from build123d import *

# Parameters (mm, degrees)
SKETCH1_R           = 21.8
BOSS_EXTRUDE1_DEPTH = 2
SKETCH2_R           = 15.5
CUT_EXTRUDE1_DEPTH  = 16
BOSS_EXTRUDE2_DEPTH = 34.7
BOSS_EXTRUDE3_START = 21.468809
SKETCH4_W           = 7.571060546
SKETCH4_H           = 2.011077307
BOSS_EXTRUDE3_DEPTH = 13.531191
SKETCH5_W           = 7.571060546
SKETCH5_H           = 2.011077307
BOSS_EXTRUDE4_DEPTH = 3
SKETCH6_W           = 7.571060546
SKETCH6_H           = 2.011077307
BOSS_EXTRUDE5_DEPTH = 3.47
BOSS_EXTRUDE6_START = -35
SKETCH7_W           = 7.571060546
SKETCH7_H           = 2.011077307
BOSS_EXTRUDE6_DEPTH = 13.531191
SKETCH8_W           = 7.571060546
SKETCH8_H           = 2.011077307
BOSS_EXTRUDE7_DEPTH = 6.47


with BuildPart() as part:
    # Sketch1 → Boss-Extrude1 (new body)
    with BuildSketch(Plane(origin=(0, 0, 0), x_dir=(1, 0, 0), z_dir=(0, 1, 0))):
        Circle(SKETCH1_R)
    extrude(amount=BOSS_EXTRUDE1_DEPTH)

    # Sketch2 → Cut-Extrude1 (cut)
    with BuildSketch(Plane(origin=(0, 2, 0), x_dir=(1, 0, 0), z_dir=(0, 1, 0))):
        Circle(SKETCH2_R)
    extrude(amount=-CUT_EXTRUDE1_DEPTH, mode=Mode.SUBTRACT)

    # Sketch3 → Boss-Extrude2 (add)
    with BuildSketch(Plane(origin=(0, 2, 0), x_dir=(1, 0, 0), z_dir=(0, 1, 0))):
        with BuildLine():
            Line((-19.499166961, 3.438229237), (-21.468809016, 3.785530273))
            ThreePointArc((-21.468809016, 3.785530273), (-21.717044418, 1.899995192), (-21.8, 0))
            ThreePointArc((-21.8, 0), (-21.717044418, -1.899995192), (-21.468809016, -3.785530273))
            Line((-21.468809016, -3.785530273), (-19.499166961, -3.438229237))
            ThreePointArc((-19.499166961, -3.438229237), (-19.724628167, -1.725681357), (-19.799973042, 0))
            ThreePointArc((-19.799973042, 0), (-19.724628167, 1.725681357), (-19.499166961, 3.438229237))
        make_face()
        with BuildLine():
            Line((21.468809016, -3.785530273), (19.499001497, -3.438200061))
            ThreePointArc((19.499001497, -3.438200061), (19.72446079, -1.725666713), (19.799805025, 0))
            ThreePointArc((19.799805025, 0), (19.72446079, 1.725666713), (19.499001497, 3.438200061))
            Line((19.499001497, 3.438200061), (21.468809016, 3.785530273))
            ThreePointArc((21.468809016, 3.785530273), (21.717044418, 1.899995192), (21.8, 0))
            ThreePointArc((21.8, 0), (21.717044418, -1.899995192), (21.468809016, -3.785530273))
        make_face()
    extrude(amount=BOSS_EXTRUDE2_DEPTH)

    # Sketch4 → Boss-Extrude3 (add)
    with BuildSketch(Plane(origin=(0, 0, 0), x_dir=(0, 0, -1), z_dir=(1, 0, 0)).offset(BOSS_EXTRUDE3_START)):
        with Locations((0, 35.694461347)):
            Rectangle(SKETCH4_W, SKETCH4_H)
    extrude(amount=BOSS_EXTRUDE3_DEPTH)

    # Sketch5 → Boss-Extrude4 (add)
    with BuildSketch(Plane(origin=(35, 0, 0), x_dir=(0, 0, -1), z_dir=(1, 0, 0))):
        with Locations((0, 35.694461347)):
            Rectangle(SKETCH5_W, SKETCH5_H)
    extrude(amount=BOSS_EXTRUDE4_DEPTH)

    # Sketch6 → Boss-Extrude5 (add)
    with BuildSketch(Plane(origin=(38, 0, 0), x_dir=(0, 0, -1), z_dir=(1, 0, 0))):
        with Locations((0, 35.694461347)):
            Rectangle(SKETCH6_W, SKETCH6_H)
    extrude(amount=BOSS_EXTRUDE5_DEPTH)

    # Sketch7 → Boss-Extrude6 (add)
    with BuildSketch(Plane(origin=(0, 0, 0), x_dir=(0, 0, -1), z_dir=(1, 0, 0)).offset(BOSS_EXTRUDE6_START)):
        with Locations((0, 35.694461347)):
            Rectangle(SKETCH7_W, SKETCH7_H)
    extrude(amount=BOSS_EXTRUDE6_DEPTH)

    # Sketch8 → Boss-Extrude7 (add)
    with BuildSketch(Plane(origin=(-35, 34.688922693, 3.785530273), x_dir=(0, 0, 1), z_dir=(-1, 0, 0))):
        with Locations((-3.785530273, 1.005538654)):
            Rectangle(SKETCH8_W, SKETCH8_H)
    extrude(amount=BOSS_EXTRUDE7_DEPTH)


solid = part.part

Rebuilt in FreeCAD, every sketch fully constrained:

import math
import FreeCAD as App
import Part
import Sketcher

V = App.Vector
Q = App.Units.Quantity


def add_polygon(sketch, points):
    """Adds a closed chain of lines whose ends are joined by coincident constraints."""
    first, n = sketch.GeometryCount, len(points)
    for a, b in zip(points, points[1:] + points[:1]):
        sketch.addGeometry(Part.LineSegment(App.Vector(*a, 0), App.Vector(*b, 0)), False)
    for i in range(n):
        sketch.addConstraint(Sketcher.Constraint("Coincident", first + i, 2, first + (i + 1) % n, 1))

doc = App.newDocument("Part")
body = doc.addObject("PartDesign::Body", "Body")

# Sketch on XZ plane
sketch1 = doc.addObject("Sketcher::SketchObject", "Sketch")
body.addObject(sketch1)
sketch1.AttachmentSupport = (doc.XZ_Plane, [""])
sketch1.MapMode = "FlatFace"
sketch1.addGeometry(Part.Circle(V(0, 0, 0), V(0, 0, 1), 22), False)
sketch1.addConstraint(Sketcher.Constraint("Coincident", 0, 3, -1, 1))
sketch1.addConstraint(Sketcher.Constraint("Diameter", 0, 43.6))
pad1 = doc.addObject("PartDesign::Pad", "Pad")
body.addObject(pad1)
pad1.Profile = sketch1
pad1.Length = 2
pad1.Reversed = True

# Sketch on XZ plane
sketch2 = doc.addObject("Sketcher::SketchObject", "Sketch001")
body.addObject(sketch2)
sketch2.AttachmentSupport = (doc.XZ_Plane, [""])
sketch2.MapMode = "FlatFace"
sketch2.AttachmentOffset = App.Placement(V(0, 0, -2), App.Rotation())
sketch2.addGeometry(Part.Circle(V(0, 0, 0), V(0, 0, 1), 16), False)
sketch2.addConstraint(Sketcher.Constraint("Coincident", 0, 3, -1, 1))
sketch2.addConstraint(Sketcher.Constraint("Diameter", 0, 31.0))
pocket1 = doc.addObject("PartDesign::Pocket", "Pocket")
body.addObject(pocket1)
pocket1.Profile = sketch2
pocket1.Length = 16
pocket1.Reversed = True

# Sketch on XZ plane
sketch3 = doc.addObject("Sketcher::SketchObject", "Sketch002")
body.addObject(sketch3)
sketch3.AttachmentSupport = (doc.XZ_Plane, [""])
sketch3.MapMode = "FlatFace"
sketch3.AttachmentOffset = App.Placement(V(0, 0, -2), App.Rotation())
sketch3.addGeometry(Part.LineSegment(V(-19.5, -3.4, 0), V(-21.5, -3.8, 0)), False)
sketch3.addGeometry(Part.ArcOfCircle(Part.Circle(V(0, 0, 0), V(0, 0, 1), 21.8), math.radians(-180), math.radians(-170)), False)
sketch3.addGeometry(Part.ArcOfCircle(Part.Circle(V(0, 0, 0), V(0, 0, 1), 21.8), math.radians(170), math.radians(180)), False)
sketch3.addGeometry(Part.LineSegment(V(-21.5, 3.8, 0), V(-19.5, 3.4, 0)), False)
sketch3.addGeometry(Part.ArcOfCircle(Part.Circle(V(0, 0, 0), V(0, 0, 1), 19.8), math.radians(170), math.radians(180)), False)
sketch3.addGeometry(Part.ArcOfCircle(Part.Circle(V(0, 0, 0), V(0, 0, 1), 19.8), math.radians(180), math.radians(190)), False)
sketch3.addGeometry(Part.LineSegment(V(19.5, 3.4, 0), V(21.5, 3.8, 0)), False)
sketch3.addGeometry(Part.ArcOfCircle(Part.Circle(V(0, 0, 0), V(0, 0, 1), 21.8), math.radians(0), math.radians(10)), False)
sketch3.addGeometry(Part.ArcOfCircle(Part.Circle(V(0, 0, 0), V(0, 0, 1), 21.8), math.radians(-10), math.radians(0)), False)
sketch3.addGeometry(Part.LineSegment(V(21.5, -3.8, 0), V(19.5, -3.4, 0)), False)
sketch3.addGeometry(Part.ArcOfCircle(Part.Circle(V(0, 0, 0), V(0, 0, 1), 19.8), math.radians(-10), math.radians(0)), False)
sketch3.addGeometry(Part.ArcOfCircle(Part.Circle(V(0, 0, 0), V(0, 0, 1), 19.8), math.radians(0), math.radians(10)), False)
sketch3.addConstraint(Sketcher.Constraint("Coincident", 0, 2, 1, 2))
sketch3.addConstraint(Sketcher.Constraint("Tangent", 1, 1, 2, 2))
sketch3.addConstraint(Sketcher.Constraint("Coincident", 2, 1, 3, 1))
sketch3.addConstraint(Sketcher.Constraint("Coincident", 3, 2, 4, 1))
sketch3.addConstraint(Sketcher.Constraint("Tangent", 4, 2, 5, 1))
sketch3.addConstraint(Sketcher.Constraint("Coincident", 5, 2, 0, 1))
sketch3.addConstraint(Sketcher.Constraint("Coincident", 6, 2, 7, 2))
sketch3.addConstraint(Sketcher.Constraint("Tangent", 7, 1, 8, 2))
sketch3.addConstraint(Sketcher.Constraint("Coincident", 8, 1, 9, 1))
sketch3.addConstraint(Sketcher.Constraint("Coincident", 9, 2, 10, 1))
sketch3.addConstraint(Sketcher.Constraint("Tangent", 10, 2, 11, 1))
sketch3.addConstraint(Sketcher.Constraint("Coincident", 11, 2, 6, 1))
sketch3.addConstraint(Sketcher.Constraint("Coincident", 1, 3, -1, 1))
sketch3.addConstraint(Sketcher.Constraint("Coincident", 4, 3, -1, 1))
sketch3.addConstraint(Sketcher.Constraint("Coincident", 7, 3, -1, 1))
sketch3.addConstraint(Sketcher.Constraint("Coincident", 10, 3, -1, 1))
sketch3.addConstraint(Sketcher.Constraint("Equal", 1, 2))
sketch3.addConstraint(Sketcher.Constraint("Equal", 4, 5))
sketch3.addConstraint(Sketcher.Constraint("Equal", 2, 7))
sketch3.addConstraint(Sketcher.Constraint("Equal", 7, 8))
sketch3.addConstraint(Sketcher.Constraint("Equal", 10, 11))
sketch3.addConstraint(Sketcher.Constraint("PointOnObject", 1, 1, -1))
sketch3.addConstraint(Sketcher.Constraint("PointOnObject", 4, 2, -1))
sketch3.addConstraint(Sketcher.Constraint("PointOnObject", 7, 1, -1))
sketch3.addConstraint(Sketcher.Constraint("PointOnObject", 10, 2, -1))
sketch3.addConstraint(Sketcher.Constraint("Parallel", 0, 6))
sketch3.addConstraint(Sketcher.Constraint("Parallel", 3, 9))
sketch3.addConstraint(Sketcher.Constraint("Horizontal", 2, 1, 6, 2))
sketch3.addConstraint(Sketcher.Constraint("Horizontal", 0, 2, 8, 1))
sketch3.addConstraint(Sketcher.Constraint("Vertical", 0, 2, 2, 1))
sketch3.addConstraint(Sketcher.Constraint("Vertical", 3, 2, 5, 2))
sketch3.addConstraint(Sketcher.Constraint("Radius", 1, 21.8))
sketch3.addConstraint(Sketcher.Constraint("Angle", 0, Q("-170 deg")))
sketch3.addConstraint(Sketcher.Constraint("DistanceX", -1, 1, 9, 2, 19.499001))
sketch3.addConstraint(Sketcher.Constraint("Radius", 4, 19.799973))
sketch3.addConstraint(Sketcher.Constraint("Radius", 10, 19.799805))
pad2 = doc.addObject("PartDesign::Pad", "Pad001")
body.addObject(pad2)
pad2.Profile = sketch3
pad2.Length = 34.7
pad2.Reversed = True

# Sketch on YZ plane
sketch4 = doc.addObject("Sketcher::SketchObject", "Sketch003")
body.addObject(sketch4)
sketch4.AttachmentSupport = (doc.YZ_Plane, [""])
sketch4.MapMode = "FlatFace"
sketch4.AttachmentOffset = App.Placement(V(0, 0, 21.468809), App.Rotation())
add_polygon(sketch4, [(36.7, 3.8), (34.7, 3.8), (34.7, -3.8), (36.7, -3.8)])  # lines 0-3
sketch4.addConstraint(Sketcher.Constraint("Horizontal", 0))
sketch4.addConstraint(Sketcher.Constraint("Vertical", 1))
sketch4.addConstraint(Sketcher.Constraint("Horizontal", 2))
sketch4.addConstraint(Sketcher.Constraint("Vertical", 3))
sketch4.addConstraint(Sketcher.Constraint("DistanceX", -1, 1, 2, 2, 36.7))
sketch4.addConstraint(Sketcher.Constraint("DistanceY", 1, 2, 1, 1, 7.571061))
sketch4.addConstraint(Sketcher.Constraint("DistanceX", 0, 2, 0, 1, 2.011077))
sketch4.addConstraint(Sketcher.Constraint("DistanceY", -1, 1, 0, 2, 3.78553))
pad3 = doc.addObject("PartDesign::Pad", "Pad002")
body.addObject(pad3)
pad3.Profile = sketch4
pad3.Length = 13.531191

# Sketch on YZ plane
sketch5 = doc.addObject("Sketcher::SketchObject", "Sketch004")
body.addObject(sketch5)
sketch5.AttachmentSupport = (doc.YZ_Plane, [""])
sketch5.MapMode = "FlatFace"
sketch5.AttachmentOffset = App.Placement(V(0, 0, 35), App.Rotation())
add_polygon(sketch5, [(36.7, 3.8), (34.7, 3.8), (34.7, -3.8), (36.7, -3.8)])  # lines 0-3
sketch5.addConstraint(Sketcher.Constraint("Horizontal", 0))
sketch5.addConstraint(Sketcher.Constraint("Vertical", 1))
sketch5.addConstraint(Sketcher.Constraint("Horizontal", 2))
sketch5.addConstraint(Sketcher.Constraint("Vertical", 3))
sketch5.addConstraint(Sketcher.Constraint("DistanceX", -1, 1, 2, 2, 36.7))
sketch5.addConstraint(Sketcher.Constraint("DistanceY", 1, 2, 1, 1, 7.571061))
sketch5.addConstraint(Sketcher.Constraint("DistanceX", 0, 2, 0, 1, 2.011077))
sketch5.addConstraint(Sketcher.Constraint("DistanceY", -1, 1, 0, 2, 3.78553))
pad4 = doc.addObject("PartDesign::Pad", "Pad003")
body.addObject(pad4)
pad4.Profile = sketch5
pad4.Length = 3

# Sketch on YZ plane
sketch6 = doc.addObject("Sketcher::SketchObject", "Sketch005")
body.addObject(sketch6)
sketch6.AttachmentSupport = (doc.YZ_Plane, [""])
sketch6.MapMode = "FlatFace"
sketch6.AttachmentOffset = App.Placement(V(0, 0, 38), App.Rotation())
add_polygon(sketch6, [(36.7, 3.8), (34.7, 3.8), (34.7, -3.8), (36.7, -3.8)])  # lines 0-3
sketch6.addConstraint(Sketcher.Constraint("Horizontal", 0))
sketch6.addConstraint(Sketcher.Constraint("Vertical", 1))
sketch6.addConstraint(Sketcher.Constraint("Horizontal", 2))
sketch6.addConstraint(Sketcher.Constraint("Vertical", 3))
sketch6.addConstraint(Sketcher.Constraint("DistanceX", -1, 1, 2, 2, 36.7))
sketch6.addConstraint(Sketcher.Constraint("DistanceY", 1, 2, 1, 1, 7.571061))
sketch6.addConstraint(Sketcher.Constraint("DistanceX", 0, 2, 0, 1, 2.011077))
sketch6.addConstraint(Sketcher.Constraint("DistanceY", -1, 1, 0, 2, 3.78553))
pad5 = doc.addObject("PartDesign::Pad", "Pad004")
body.addObject(pad5)
pad5.Profile = sketch6
pad5.Length = 3.47

# Sketch on YZ plane
sketch7 = doc.addObject("Sketcher::SketchObject", "Sketch006")
body.addObject(sketch7)
sketch7.AttachmentSupport = (doc.YZ_Plane, [""])
sketch7.MapMode = "FlatFace"
sketch7.AttachmentOffset = App.Placement(V(0, 0, -35), App.Rotation())
add_polygon(sketch7, [(36.7, 3.8), (34.7, 3.8), (34.7, -3.8), (36.7, -3.8)])  # lines 0-3
sketch7.addConstraint(Sketcher.Constraint("Horizontal", 0))
sketch7.addConstraint(Sketcher.Constraint("Vertical", 1))
sketch7.addConstraint(Sketcher.Constraint("Horizontal", 2))
sketch7.addConstraint(Sketcher.Constraint("Vertical", 3))
sketch7.addConstraint(Sketcher.Constraint("DistanceX", -1, 1, 2, 2, 36.7))
sketch7.addConstraint(Sketcher.Constraint("DistanceY", 1, 2, 1, 1, 7.571061))
sketch7.addConstraint(Sketcher.Constraint("DistanceX", 0, 2, 0, 1, 2.011077))
sketch7.addConstraint(Sketcher.Constraint("DistanceY", -1, 1, 0, 2, 3.78553))
pad6 = doc.addObject("PartDesign::Pad", "Pad005")
body.addObject(pad6)
pad6.Profile = sketch7
pad6.Length = 13.531191

# Sketch on YZ plane
sketch8 = doc.addObject("Sketcher::SketchObject", "Sketch007")
body.addObject(sketch8)
sketch8.AttachmentSupport = (doc.YZ_Plane, [""])
sketch8.MapMode = "FlatFace"
sketch8.AttachmentOffset = App.Placement(V(0, 0, -35), App.Rotation())
add_polygon(sketch8, [(36.7, -3.8), (34.7, -3.8), (34.7, 3.8), (36.7, 3.8)])  # lines 0-3
sketch8.addConstraint(Sketcher.Constraint("Horizontal", 0))
sketch8.addConstraint(Sketcher.Constraint("Vertical", 1))
sketch8.addConstraint(Sketcher.Constraint("Horizontal", 2))
sketch8.addConstraint(Sketcher.Constraint("Vertical", 3))
sketch8.addConstraint(Sketcher.Constraint("DistanceX", -1, 1, 2, 2, 36.7))
sketch8.addConstraint(Sketcher.Constraint("DistanceY", 1, 1, 1, 2, 7.571061))
sketch8.addConstraint(Sketcher.Constraint("DistanceX", 0, 2, 0, 1, 2.011077))
sketch8.addConstraint(Sketcher.Constraint("DistanceY", 0, 2, -1, 1, 3.78553))
pad7 = doc.addObject("PartDesign::Pad", "Pad006")
body.addObject(pad7)
pad7.Profile = sketch8
pad7.Length = 6.47
pad7.Reversed = True

doc.recompute()
